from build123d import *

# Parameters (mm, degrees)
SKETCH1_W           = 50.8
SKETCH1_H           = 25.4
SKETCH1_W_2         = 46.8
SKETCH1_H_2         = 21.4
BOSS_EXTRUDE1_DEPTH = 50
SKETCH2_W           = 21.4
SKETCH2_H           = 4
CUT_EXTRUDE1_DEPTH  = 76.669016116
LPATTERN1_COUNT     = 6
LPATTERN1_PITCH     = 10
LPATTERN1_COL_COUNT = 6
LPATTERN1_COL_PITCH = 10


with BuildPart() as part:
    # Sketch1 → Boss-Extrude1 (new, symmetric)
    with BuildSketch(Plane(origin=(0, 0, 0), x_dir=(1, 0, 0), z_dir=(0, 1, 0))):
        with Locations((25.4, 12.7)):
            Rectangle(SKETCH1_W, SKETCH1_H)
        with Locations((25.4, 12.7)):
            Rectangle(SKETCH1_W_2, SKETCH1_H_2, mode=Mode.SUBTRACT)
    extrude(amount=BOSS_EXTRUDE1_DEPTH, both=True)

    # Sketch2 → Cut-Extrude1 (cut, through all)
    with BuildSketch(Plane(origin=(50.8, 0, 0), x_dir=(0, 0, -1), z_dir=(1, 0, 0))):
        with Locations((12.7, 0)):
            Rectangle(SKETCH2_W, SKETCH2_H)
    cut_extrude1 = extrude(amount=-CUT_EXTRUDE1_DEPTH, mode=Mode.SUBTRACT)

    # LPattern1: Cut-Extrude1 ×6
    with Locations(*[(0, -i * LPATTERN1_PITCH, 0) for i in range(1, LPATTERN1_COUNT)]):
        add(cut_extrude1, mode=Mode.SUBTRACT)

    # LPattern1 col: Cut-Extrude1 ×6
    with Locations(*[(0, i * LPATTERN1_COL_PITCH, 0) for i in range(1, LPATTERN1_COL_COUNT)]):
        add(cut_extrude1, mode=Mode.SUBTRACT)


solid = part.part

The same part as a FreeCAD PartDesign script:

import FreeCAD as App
import Part
import Sketcher
from FreeCAD import Vector
Q = App.Units.Quantity


def add_polygon(sketch, points):
    """Adds a closed chain of lines whose ends are joined by coincident constraints."""
    first, n = sketch.GeometryCount, len(points)
    for a, b in zip(points, points[1:] + points[:1]):
        sketch.addGeometry(Part.LineSegment(App.Vector(*a, 0), App.Vector(*b, 0)), False)
    for i in range(n):
        sketch.addConstraint(Sketcher.Constraint("Coincident", first + i, 2, first + (i + 1) % n, 1))

doc = App.newDocument("Part")
params = doc.addObject("Spreadsheet::Sheet", "Params")
for row, (alias, value) in enumerate([
    ("sketch1_width", "50.8 mm"),
    ("sketch1_width2", "46.8 mm"),
    ("sketch1_height", "25.4 mm"),
    ("sketch1_height2", "21.4 mm"),
    ("pad1_length", "100 mm"),
    ("sketch2_width", "4 mm"),
    ("sketch2_height", "21.4 mm"),
    ("linearpattern_pitch", "10 mm"),
    ("linearpattern2_pitch", "10 mm"),
], start=1):
    params.set(f"A{row}", alias)
    params.set(f"B{row}", "=" + value)
    params.setAlias(f"B{row}", alias)

body = doc.addObject("PartDesign::Body", "Body")

# Sketch on XZ plane
sketch1 = doc.addObject("Sketcher::SketchObject", "Sketch")
body.addObject(sketch1)
sketch1.AttachmentSupport = (doc.XZ_Plane, [""])
sketch1.MapMode = "FlatFace"
add_polygon(sketch1, [(0, -25), (0, 0), (51, 0), (51, -25)])  # lines 0-3
add_polygon(sketch1, [(49, -2), (2, -2), (2, -23), (49, -23)])  # lines 4-7
sketch1.addConstraint(Sketcher.Constraint("Vertical", 0))
sketch1.addConstraint(Sketcher.Constraint("Horizontal", 1))
sketch1.addConstraint(Sketcher.Constraint("Vertical", 2))
sketch1.addConstraint(Sketcher.Constraint("Horizontal", 3))
sketch1.addConstraint(Sketcher.Constraint("Horizontal", 4))
sketch1.addConstraint(Sketcher.Constraint("Vertical", 5))
sketch1.addConstraint(Sketcher.Constraint("Horizontal", 6))
sketch1.addConstraint(Sketcher.Constraint("Vertical", 7))
sketch1.addConstraint(Sketcher.Constraint("Coincident", 0, 2, -1, 1))
sketch1.addConstraint(Sketcher.Constraint("DistanceX", 1, 1, 1, 2, Q("50.8 mm")))
sketch1.addConstraint(Sketcher.Constraint("DistanceX", 4, 2, 4, 1, Q("46.8 mm")))
sketch1.addConstraint(Sketcher.Constraint("DistanceY", 0, 1, 0, 2, Q("25.4 mm")))
sketch1.addConstraint(Sketcher.Constraint("DistanceY", 5, 2, 5, 1, Q("21.4 mm")))
sketch1.addConstraint(Sketcher.Constraint("DistanceX", -1, 1, 4, 2, Q("2 mm")))
sketch1.addConstraint(Sketcher.Constraint("DistanceY", 4, 2, -1, 1, Q("2 mm")))
sketch1.setExpression("Constraints[17]", "Params.sketch1_width")
sketch1.setExpression("Constraints[18]", "Params.sketch1_width2")
sketch1.setExpression("Constraints[19]", "Params.sketch1_height")
sketch1.setExpression("Constraints[20]", "Params.sketch1_height2")
pad1 = doc.addObject("PartDesign::Pad", "Pad")
body.addObject(pad1)
pad1.Profile = sketch1
pad1.setExpression("Length", "Params.pad1_length")
pad1.Midplane = True

# Sketch on YZ plane
sketch2 = doc.addObject("Sketcher::SketchObject", "Sketch001")
body.addObject(sketch2)
sketch2.AttachmentSupport = (doc.YZ_Plane, [""])
sketch2.MapMode = "FlatFace"
sketch2.AttachmentOffset = App.Placement(Vector(0, 0, 50.8), App.Rotation())
add_polygon(sketch2, [(2, -2), (-2, -2), (-2, -23.4), (2, -23.4)])  # lines 0-3
sketch2.addConstraint(Sketcher.Constraint("Horizontal", 0))
sketch2.addConstraint(Sketcher.Constraint("Vertical", 1))
sketch2.addConstraint(Sketcher.Constraint("Horizontal", 2))
sketch2.addConstraint(Sketcher.Constraint("Vertical", 3))
sketch2.addConstraint(Sketcher.Constraint("DistanceX", 0, 2, 0, 1, Q("4 mm")))
sketch2.addConstraint(Sketcher.Constraint("DistanceY", 1, 2, 1, 1, Q("21.4 mm")))
sketch2.addConstraint(Sketcher.Constraint("DistanceX", 0, 2, -1, 1, Q("2 mm")))
sketch2.addConstraint(Sketcher.Constraint("DistanceY", 0, 2, -1, 1, Q("2 mm")))
sketch2.setExpression("Constraints[8]", "Params.sketch2_width")
sketch2.setExpression("Constraints[9]", "Params.sketch2_height")
pocket1 = doc.addObject("PartDesign::Pocket", "Pocket")
body.addObject(pocket1)
pocket1.Profile = sketch2
pocket1.Type = "ThroughAll"
doc.recompute()

linearpattern = doc.addObject("PartDesign::LinearPattern", "LinearPattern")
body.addObject(linearpattern)
linearpattern.Originals = [pocket1]
linearpattern.Direction = (doc.Y_Axis, [""])
linearpattern.Mode = "offset"
linearpattern.setExpression("Offset", "Params.linearpattern_pitch")
linearpattern.Occurrences = 6
linearpattern.Reversed = True
body.Tip = linearpattern
doc.recompute()

linearpattern2 = doc.addObject("PartDesign::LinearPattern", "LinearPattern001")
body.addObject(linearpattern2)
linearpattern2.Originals = [pocket1]
linearpattern2.Direction = (doc.Y_Axis, [""])
linearpattern2.Mode = "offset"
linearpattern2.setExpression("Offset", "Params.linearpattern2_pitch")
linearpattern2.Occurrences = 6
body.Tip = linearpattern2

doc.recompute()
